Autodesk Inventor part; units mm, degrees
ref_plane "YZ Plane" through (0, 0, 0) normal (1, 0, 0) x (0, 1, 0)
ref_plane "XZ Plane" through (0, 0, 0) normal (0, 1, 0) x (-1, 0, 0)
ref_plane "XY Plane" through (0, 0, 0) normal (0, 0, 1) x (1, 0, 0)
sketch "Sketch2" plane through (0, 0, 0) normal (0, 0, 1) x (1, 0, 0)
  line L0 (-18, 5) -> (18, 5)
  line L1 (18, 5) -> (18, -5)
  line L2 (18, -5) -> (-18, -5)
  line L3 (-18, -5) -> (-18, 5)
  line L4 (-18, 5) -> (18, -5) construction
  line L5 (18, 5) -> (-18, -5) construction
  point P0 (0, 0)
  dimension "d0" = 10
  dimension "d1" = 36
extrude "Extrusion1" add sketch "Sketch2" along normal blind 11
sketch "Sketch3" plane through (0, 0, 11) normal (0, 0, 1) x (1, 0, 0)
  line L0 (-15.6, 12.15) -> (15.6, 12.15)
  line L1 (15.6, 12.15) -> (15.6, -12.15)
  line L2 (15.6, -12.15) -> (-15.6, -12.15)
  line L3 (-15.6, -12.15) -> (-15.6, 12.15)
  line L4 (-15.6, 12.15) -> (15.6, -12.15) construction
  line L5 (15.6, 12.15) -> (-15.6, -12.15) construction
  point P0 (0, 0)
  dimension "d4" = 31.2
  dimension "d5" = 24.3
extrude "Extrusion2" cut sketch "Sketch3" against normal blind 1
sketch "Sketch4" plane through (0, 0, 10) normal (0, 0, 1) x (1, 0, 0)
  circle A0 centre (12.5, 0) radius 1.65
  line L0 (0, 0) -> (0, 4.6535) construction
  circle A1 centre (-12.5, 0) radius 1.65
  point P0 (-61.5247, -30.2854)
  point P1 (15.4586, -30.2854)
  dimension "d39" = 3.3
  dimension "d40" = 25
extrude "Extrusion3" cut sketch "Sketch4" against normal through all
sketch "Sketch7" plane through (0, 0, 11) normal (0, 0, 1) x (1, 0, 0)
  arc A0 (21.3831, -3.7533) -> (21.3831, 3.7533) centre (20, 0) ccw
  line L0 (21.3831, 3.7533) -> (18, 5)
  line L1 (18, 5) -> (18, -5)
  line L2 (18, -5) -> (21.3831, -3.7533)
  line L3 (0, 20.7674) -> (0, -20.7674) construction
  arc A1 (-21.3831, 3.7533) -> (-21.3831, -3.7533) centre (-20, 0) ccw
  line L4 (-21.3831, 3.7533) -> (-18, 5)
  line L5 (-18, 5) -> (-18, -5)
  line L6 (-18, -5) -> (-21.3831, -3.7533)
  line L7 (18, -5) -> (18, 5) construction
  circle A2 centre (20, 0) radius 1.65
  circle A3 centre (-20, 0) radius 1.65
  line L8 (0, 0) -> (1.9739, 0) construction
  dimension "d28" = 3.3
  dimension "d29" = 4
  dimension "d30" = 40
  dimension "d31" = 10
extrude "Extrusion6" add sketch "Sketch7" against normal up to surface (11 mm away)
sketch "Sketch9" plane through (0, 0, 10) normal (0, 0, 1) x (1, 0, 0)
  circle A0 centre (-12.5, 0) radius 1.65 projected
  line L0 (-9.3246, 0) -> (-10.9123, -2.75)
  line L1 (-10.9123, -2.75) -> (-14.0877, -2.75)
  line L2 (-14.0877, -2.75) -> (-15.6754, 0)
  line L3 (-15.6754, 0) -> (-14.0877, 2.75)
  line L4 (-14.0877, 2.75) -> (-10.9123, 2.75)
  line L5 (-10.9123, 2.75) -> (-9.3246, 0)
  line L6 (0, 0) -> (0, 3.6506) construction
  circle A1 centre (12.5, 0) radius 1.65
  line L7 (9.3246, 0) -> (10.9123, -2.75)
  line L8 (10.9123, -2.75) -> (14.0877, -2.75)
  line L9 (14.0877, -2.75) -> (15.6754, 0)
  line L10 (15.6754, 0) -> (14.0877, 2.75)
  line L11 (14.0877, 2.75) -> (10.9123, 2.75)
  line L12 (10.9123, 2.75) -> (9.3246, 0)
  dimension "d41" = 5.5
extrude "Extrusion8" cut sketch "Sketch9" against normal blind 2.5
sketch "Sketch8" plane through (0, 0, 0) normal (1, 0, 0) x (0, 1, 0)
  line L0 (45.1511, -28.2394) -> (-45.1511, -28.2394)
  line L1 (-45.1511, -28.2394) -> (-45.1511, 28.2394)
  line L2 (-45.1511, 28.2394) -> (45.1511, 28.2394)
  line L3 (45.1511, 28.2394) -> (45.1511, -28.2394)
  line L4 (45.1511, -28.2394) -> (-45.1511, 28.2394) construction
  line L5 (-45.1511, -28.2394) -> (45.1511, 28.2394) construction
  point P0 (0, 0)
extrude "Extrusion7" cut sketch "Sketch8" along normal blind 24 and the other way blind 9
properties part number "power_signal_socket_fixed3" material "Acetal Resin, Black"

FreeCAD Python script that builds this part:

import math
import FreeCAD as App
import Part
import Sketcher

V = App.Vector
Q = App.Units.Quantity

doc = App.newDocument("Part")
body = doc.addObject("PartDesign::Body", "Body")

sketch1 = doc.addObject("Sketcher::SketchObject", "Sketch")
body.addObject(sketch1)
sketch1.AttachmentSupport = (doc.XY_Plane, [""])
sketch1.MapMode = "FlatFace"
sketch1.addGeometry([
    Part.LineSegment(V(18, 5, 0), V(-18, 5, 0)),
    Part.LineSegment(V(-18, 5, 0), V(-18, -5, 0)),
    Part.LineSegment(V(-18, -5, 0), V(18, -5, 0)),
    Part.LineSegment(V(18, -5, 0), V(18, 5, 0)),
], False)
sketch1.addConstraint([
    Sketcher.Constraint("Coincident", 0, 2, 1, 1),
    Sketcher.Constraint("Coincident", 1, 2, 2, 1),
    Sketcher.Constraint("Coincident", 2, 2, 3, 1),
    Sketcher.Constraint("Coincident", 3, 2, 0, 1),
    Sketcher.Constraint("Horizontal", 0),
    Sketcher.Constraint("Vertical", 1),
    Sketcher.Constraint("Horizontal", 2),
    Sketcher.Constraint("Vertical", 3),
    Sketcher.Constraint("Symmetric", 0, 2, 2, 2, -1, 1),
    Sketcher.Constraint("DistanceX", 0, 2, 0, 1, 36.0),
    Sketcher.Constraint("DistanceY", 1, 2, 1, 1, 10.0),
])
pad1 = doc.addObject("PartDesign::Pad", "Pad")
body.addObject(pad1)
pad1.Profile = sketch1
pad1.Length = 11

sketch2 = doc.addObject("Sketcher::SketchObject", "Sketch001")
body.addObject(sketch2)
sketch2.AttachmentSupport = (doc.XY_Plane, [""])
sketch2.MapMode = "FlatFace"
sketch2.AttachmentOffset = App.Placement(V(0, 0, 11), App.Rotation())
sketch2.addGeometry([
    Part.LineSegment(V(15.6, 12.15, 0), V(-15.6, 12.15, 0)),
    Part.LineSegment(V(-15.6, 12.15, 0), V(-15.6, -12.15, 0)),
    Part.LineSegment(V(-15.6, -12.15, 0), V(15.6, -12.15, 0)),
    Part.LineSegment(V(15.6, -12.15, 0), V(15.6, 12.15, 0)),
], False)
sketch2.addConstraint([
    Sketcher.Constraint("Coincident", 0, 2, 1, 1),
    Sketcher.Constraint("Coincident", 1, 2, 2, 1),
    Sketcher.Constraint("Coincident", 2, 2, 3, 1),
    Sketcher.Constraint("Coincident", 3, 2, 0, 1),
    Sketcher.Constraint("Horizontal", 0),
    Sketcher.Constraint("Vertical", 1),
    Sketcher.Constraint("Horizontal", 2),
    Sketcher.Constraint("Vertical", 3),
    Sketcher.Constraint("Symmetric", 0, 2, 2, 2, -1, 1),
    Sketcher.Constraint("DistanceX", 0, 2, 0, 1, 31.2),
    Sketcher.Constraint("DistanceY", 1, 2, 1, 1, 24.3),
])
pocket1 = doc.addObject("PartDesign::Pocket", "Pocket")
body.addObject(pocket1)
pocket1.Profile = sketch2
pocket1.Length = 1

sketch3 = doc.addObject("Sketcher::SketchObject", "Sketch002")
body.addObject(sketch3)
sketch3.AttachmentSupport = (doc.XY_Plane, [""])
sketch3.MapMode = "FlatFace"
sketch3.AttachmentOffset = App.Placement(V(0, 0, 10), App.Rotation())
sketch3.addGeometry([
    Part.Circle(V(12.5, 0, 0), V(0, 0, 1), 1.65),
    Part.Circle(V(-12.5, 0, 0), V(0, 0, 1), 1.65),
], False)
sketch3.addConstraint([
    Sketcher.Constraint("Equal", 0, 1),
    Sketcher.Constraint("Symmetric", 0, 3, 1, 3, -1, 1),
    Sketcher.Constraint("PointOnObject", 0, 3, -1),
    Sketcher.Constraint("Diameter", 0, 3.3),
    Sketcher.Constraint("DistanceX", 1, 3, 0, 3, 25.0),
])
pocket2 = doc.addObject("PartDesign::Pocket", "Pocket001")
body.addObject(pocket2)
pocket2.Profile = sketch3
pocket2.Type = "ThroughAll"

sketch4 = doc.addObject("Sketcher::SketchObject", "Sketch003")
body.addObject(sketch4)
sketch4.AttachmentSupport = (doc.XY_Plane, [""])
sketch4.MapMode = "FlatFace"
sketch4.AttachmentOffset = App.Placement(V(0, 0, 11), App.Rotation())
sketch4.addGeometry([
    Part.LineSegment(V(18, -5, 0), V(21.3831, -3.7533, 0)),
    Part.ArcOfCircle(Part.Circle(V(20, 0, 0), V(0, 0, 1), 4.000028), math.radians(-69.771038), math.radians(69.771038)),
    Part.LineSegment(V(21.3831, 3.7533, 0), V(18, 5, 0)),
    Part.LineSegment(V(18, 5, 0), V(18, -5, 0)),
    Part.Circle(V(20, 0, 0), V(0, 0, 1), 1.65),
    Part.LineSegment(V(-18, 5, 0), V(-21.3831, 3.7533, 0)),
    Part.ArcOfCircle(Part.Circle(V(-20, 0, 0), V(0, 0, 1), 4.000028), math.radians(110.228962), math.radians(249.771038)),
    Part.LineSegment(V(-21.3831, -3.7533, 0), V(-18, -5, 0)),
    Part.LineSegment(V(-18, -5, 0), V(-18, 5, 0)),
    Part.Circle(V(-20, 0, 0), V(0, 0, 1), 1.65),
], False)
sketch4.addConstraint([
    Sketcher.Constraint("Tangent", 0, 2, 1, 1),
    Sketcher.Constraint("Tangent", 1, 2, 2, 1),
    Sketcher.Constraint("Coincident", 2, 2, 3, 1),
    Sketcher.Constraint("Coincident", 3, 2, 0, 1),
    Sketcher.Constraint("Tangent", 5, 2, 6, 1),
    Sketcher.Constraint("Tangent", 6, 2, 7, 1),
    Sketcher.Constraint("Coincident", 7, 2, 8, 1),
    Sketcher.Constraint("Coincident", 8, 2, 5, 1),
    Sketcher.Constraint("Vertical", 3),
    Sketcher.Constraint("Vertical", 8),
    Sketcher.Constraint("Coincident", 4, 3, 1, 3),
    Sketcher.Constraint("Coincident", 9, 3, 6, 3),
    Sketcher.Constraint("Equal", 1, 6),
    Sketcher.Constraint("Equal", 4, 9),
    Sketcher.Constraint("Symmetric", 1, 3, 6, 3, -1, 1),
    Sketcher.Constraint("Symmetric", 2, 2, 7, 2, -1, 1),
    Sketcher.Constraint("Symmetric", 1, 2, 5, 2, -2),
    Sketcher.Constraint("Parallel", 0, 5),
    Sketcher.Constraint("Radius", 1, 4.0),
    Sketcher.Constraint("Diameter", 4, 3.3),
    Sketcher.Constraint("DistanceY", 3, 2, 3, 1, 10.0),
    Sketcher.Constraint("DistanceX", 6, 3, 1, 3, 40.0),
    Sketcher.Constraint("DistanceX", -1, 1, 2, 2, 18.0),
])
pad2 = doc.addObject("PartDesign::Pad", "Pad001")
body.addObject(pad2)
pad2.Profile = sketch4
pad2.Length = 11
pad2.Reversed = True

sketch5 = doc.addObject("Sketcher::SketchObject", "Sketch004")
body.addObject(sketch5)
sketch5.AttachmentSupport = (doc.XY_Plane, [""])
sketch5.MapMode = "FlatFace"
sketch5.AttachmentOffset = App.Placement(V(0, 0, 10), App.Rotation())
sketch5.addGeometry([
    Part.LineSegment(V(-10.9123, -2.75, 0), V(-9.3246, 0, 0)),
    Part.LineSegment(V(-9.3246, 0, 0), V(-10.9123, 2.75, 0)),
    Part.LineSegment(V(-10.9123, 2.75, 0), V(-14.0877, 2.75, 0)),
    Part.LineSegment(V(-14.0877, 2.75, 0), V(-15.6754, 0, 0)),
    Part.LineSegment(V(-15.6754, 0, 0), V(-14.0877, -2.75, 0)),
    Part.LineSegment(V(-14.0877, -2.75, 0), V(-10.9123, -2.75, 0)),
    Part.Circle(V(-12.5, 0, 0), V(0, 0, 1), 1.65),
    Part.LineSegment(V(10.9123, 2.75, 0), V(9.3246, 0, 0)),
    Part.LineSegment(V(9.3246, 0, 0), V(10.9123, -2.75, 0)),
    Part.LineSegment(V(10.9123, -2.75, 0), V(14.0877, -2.75, 0)),
    Part.LineSegment(V(14.0877, -2.75, 0), V(15.6754, 0, 0)),
    Part.LineSegment(V(15.6754, 0, 0), V(14.0877, 2.75, 0)),
    Part.LineSegment(V(14.0877, 2.75, 0), V(10.9123, 2.75, 0)),
    Part.Circle(V(12.5, 0, 0), V(0, 0, 1), 1.65),
], False)
sketch5.addConstraint([
    Sketcher.Constraint("Coincident", 0, 2, 1, 1),
    Sketcher.Constraint("Coincident", 1, 2, 2, 1),
    Sketcher.Constraint("Coincident", 2, 2, 3, 1),
    Sketcher.Constraint("Coincident", 3, 2, 4, 1),
    Sketcher.Constraint("Coincident", 4, 2, 5, 1),
    Sketcher.Constraint("Coincident", 5, 2, 0, 1),
    Sketcher.Constraint("Coincident", 7, 2, 8, 1),
    Sketcher.Constraint("Coincident", 8, 2, 9, 1),
    Sketcher.Constraint("Coincident", 9, 2, 10, 1),
    Sketcher.Constraint("Coincident", 10, 2, 11, 1),
    Sketcher.Constraint("Coincident", 11, 2, 12, 1),
    Sketcher.Constraint("Coincident", 12, 2, 7, 1),
    Sketcher.Constraint("Horizontal", 2),
    Sketcher.Constraint("Horizontal", 5),
    Sketcher.Constraint("Horizontal", 9),
    Sketcher.Constraint("Horizontal", 12),
    Sketcher.Constraint("Equal", 6, 13),
    Sketcher.Constraint("Symmetric", 6, 3, 13, 3, -1, 1),
    Sketcher.Constraint("Symmetric", 0, 2, 7, 2, -1, 1),
    Sketcher.Constraint("Symmetric", 1, 2, 8, 2, -1, 1),
    Sketcher.Constraint("Symmetric", 3, 2, 10, 2, -1, 1),
    Sketcher.Constraint("Symmetric", 4, 2, 11, 2, -1, 1),
    Sketcher.Constraint("Symmetric", 5, 2, 8, 2, -2),
    Sketcher.Constraint("PointOnObject", 6, 3, -1),
    Sketcher.Constraint("PointOnObject", 0, 2, -1),
    Sketcher.Constraint("PointOnObject", 3, 2, -1),
    Sketcher.Constraint("Parallel", 0, 3),
    Sketcher.Constraint("Parallel", 1, 4),
    Sketcher.Constraint("Parallel", 3, 7),
    Sketcher.Constraint("Parallel", 7, 10),
    Sketcher.Constraint("Diameter", 6, 3.3),
    Sketcher.Constraint("DistanceY", 4, 2, 2, 2, 5.5),
    Sketcher.Constraint("Angle", 0, Q("60.0002 deg")),
    Sketcher.Constraint("DistanceX", 6, 3, 13, 3, 25.0),
    Sketcher.Constraint("DistanceX", 5, 2, 9, 2, 25.0),
    Sketcher.Constraint("DistanceX", 2, 2, 2, 1, 3.1754),
])
pocket3 = doc.addObject("PartDesign::Pocket", "Pocket002")
body.addObject(pocket3)
pocket3.Profile = sketch5
pocket3.Length = 2.5

sketch6 = doc.addObject("Sketcher::SketchObject", "Sketch005")
body.addObject(sketch6)
sketch6.AttachmentSupport = (doc.YZ_Plane, [""])
sketch6.MapMode = "FlatFace"
sketch6.addGeometry([
    Part.LineSegment(V(-45.1511, -28.2394, 0), V(45.1511, -28.2394, 0)),
    Part.LineSegment(V(45.1511, -28.2394, 0), V(45.1511, 28.2394, 0)),
    Part.LineSegment(V(45.1511, 28.2394, 0), V(-45.1511, 28.2394, 0)),
    Part.LineSegment(V(-45.1511, 28.2394, 0), V(-45.1511, -28.2394, 0)),
], False)
sketch6.addConstraint([
    Sketcher.Constraint("Coincident", 0, 2, 1, 1),
    Sketcher.Constraint("Coincident", 1, 2, 2, 1),
    Sketcher.Constraint("Coincident", 2, 2, 3, 1),
    Sketcher.Constraint("Coincident", 3, 2, 0, 1),
    Sketcher.Constraint("Horizontal", 0),
    Sketcher.Constraint("Vertical", 1),
    Sketcher.Constraint("Horizontal", 2),
    Sketcher.Constraint("Vertical", 3),
    Sketcher.Constraint("Symmetric", 0, 2, 2, 2, -1, 1),
    Sketcher.Constraint("DistanceX", 0, 1, 0, 2, 90.3022),
    Sketcher.Constraint("DistanceY", 1, 1, 1, 2, 56.4788),
])
pocket4 = doc.addObject("PartDesign::Pocket", "Pocket003")
body.addObject(pocket4)
pocket4.Profile = sketch6
pocket4.Type = "TwoLengths"
pocket4.Length = 24
pocket4.Length2 = 9
pocket4.Reversed = True

doc.recompute()
